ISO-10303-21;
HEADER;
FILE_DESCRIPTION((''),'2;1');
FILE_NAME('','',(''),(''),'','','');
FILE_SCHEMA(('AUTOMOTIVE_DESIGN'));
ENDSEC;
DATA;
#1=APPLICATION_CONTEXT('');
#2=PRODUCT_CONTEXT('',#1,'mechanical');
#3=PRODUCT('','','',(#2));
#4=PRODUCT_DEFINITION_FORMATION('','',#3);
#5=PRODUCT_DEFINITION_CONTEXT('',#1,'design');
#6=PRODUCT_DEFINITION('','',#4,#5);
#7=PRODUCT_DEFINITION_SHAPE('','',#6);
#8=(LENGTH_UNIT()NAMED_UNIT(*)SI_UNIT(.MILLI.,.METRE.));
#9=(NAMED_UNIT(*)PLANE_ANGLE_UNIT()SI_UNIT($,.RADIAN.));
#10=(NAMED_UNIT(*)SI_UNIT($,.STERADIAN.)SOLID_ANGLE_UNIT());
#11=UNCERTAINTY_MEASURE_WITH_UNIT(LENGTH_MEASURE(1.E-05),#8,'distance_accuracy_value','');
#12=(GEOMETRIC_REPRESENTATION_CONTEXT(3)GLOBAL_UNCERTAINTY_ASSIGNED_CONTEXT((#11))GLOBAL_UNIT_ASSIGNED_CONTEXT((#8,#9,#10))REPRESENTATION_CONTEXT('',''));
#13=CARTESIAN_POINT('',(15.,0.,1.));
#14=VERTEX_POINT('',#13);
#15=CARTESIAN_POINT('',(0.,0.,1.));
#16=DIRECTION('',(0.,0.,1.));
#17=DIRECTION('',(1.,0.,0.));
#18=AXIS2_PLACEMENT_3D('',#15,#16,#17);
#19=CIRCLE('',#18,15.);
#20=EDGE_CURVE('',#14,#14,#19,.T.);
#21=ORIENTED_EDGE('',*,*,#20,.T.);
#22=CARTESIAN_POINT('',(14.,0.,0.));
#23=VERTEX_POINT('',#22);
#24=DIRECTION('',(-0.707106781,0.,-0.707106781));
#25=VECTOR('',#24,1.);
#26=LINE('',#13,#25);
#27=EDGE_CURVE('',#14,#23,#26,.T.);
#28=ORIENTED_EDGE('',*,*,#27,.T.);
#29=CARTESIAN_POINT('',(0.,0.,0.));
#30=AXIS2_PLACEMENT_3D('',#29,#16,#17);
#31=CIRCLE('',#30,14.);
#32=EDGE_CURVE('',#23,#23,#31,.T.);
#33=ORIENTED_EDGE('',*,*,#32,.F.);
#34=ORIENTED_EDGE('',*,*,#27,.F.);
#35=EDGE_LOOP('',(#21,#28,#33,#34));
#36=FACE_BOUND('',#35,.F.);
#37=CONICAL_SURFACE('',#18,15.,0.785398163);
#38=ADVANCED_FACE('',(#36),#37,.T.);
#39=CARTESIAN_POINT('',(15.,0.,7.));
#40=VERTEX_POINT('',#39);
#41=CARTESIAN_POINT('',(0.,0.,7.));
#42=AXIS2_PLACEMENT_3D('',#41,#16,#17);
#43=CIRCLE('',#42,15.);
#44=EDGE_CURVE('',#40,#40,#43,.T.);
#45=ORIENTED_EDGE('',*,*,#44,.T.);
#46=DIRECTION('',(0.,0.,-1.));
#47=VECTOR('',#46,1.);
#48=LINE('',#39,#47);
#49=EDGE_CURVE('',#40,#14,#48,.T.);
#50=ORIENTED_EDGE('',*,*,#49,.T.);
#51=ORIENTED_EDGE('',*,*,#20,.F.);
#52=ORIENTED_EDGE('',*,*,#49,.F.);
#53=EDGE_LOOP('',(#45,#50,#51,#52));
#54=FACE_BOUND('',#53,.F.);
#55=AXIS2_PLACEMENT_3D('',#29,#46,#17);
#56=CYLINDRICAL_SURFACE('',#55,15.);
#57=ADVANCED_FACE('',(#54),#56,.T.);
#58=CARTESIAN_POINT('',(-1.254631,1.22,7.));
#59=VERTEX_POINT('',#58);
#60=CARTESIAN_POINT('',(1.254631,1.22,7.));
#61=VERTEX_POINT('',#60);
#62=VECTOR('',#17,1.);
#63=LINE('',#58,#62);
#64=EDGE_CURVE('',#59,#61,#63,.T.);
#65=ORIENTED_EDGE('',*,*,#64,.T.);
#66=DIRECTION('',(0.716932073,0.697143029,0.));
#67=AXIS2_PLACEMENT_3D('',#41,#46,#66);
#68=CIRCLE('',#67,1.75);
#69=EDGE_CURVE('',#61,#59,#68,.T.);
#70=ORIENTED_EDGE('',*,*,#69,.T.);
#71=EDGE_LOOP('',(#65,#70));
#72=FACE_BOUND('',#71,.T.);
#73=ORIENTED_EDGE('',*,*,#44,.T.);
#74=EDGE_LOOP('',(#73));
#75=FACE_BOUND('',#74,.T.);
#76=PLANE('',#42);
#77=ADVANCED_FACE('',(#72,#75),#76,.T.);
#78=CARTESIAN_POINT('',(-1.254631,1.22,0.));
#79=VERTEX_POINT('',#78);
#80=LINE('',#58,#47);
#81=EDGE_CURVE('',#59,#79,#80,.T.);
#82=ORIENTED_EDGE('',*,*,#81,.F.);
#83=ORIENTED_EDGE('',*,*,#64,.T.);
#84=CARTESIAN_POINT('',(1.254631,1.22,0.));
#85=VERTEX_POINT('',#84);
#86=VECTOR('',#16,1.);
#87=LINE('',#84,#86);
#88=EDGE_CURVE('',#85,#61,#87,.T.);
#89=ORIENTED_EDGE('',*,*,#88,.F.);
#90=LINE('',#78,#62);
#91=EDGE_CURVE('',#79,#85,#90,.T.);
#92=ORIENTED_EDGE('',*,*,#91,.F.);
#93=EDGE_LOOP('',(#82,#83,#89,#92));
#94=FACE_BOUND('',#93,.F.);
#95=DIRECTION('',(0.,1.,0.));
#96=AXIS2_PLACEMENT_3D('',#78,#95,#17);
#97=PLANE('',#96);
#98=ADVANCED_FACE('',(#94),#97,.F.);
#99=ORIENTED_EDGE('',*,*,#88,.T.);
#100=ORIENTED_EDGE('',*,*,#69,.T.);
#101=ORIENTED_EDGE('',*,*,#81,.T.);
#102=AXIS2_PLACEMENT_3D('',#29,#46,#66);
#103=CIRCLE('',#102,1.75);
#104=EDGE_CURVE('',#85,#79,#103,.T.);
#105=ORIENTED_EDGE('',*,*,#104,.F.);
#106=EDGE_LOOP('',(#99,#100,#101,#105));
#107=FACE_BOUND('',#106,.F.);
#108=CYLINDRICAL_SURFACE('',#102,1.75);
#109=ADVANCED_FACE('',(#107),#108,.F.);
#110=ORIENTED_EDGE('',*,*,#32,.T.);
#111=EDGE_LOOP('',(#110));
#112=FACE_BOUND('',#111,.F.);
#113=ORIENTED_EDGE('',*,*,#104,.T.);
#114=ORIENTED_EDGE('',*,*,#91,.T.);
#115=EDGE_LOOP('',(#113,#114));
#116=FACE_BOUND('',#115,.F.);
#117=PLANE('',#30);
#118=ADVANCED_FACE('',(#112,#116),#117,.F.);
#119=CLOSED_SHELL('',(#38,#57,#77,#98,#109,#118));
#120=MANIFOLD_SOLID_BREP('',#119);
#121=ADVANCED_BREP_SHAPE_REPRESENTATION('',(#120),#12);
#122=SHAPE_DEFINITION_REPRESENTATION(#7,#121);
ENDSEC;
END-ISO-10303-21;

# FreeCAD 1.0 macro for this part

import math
import FreeCAD as App
import Part
import Sketcher

V = App.Vector
Q = App.Units.Quantity


def edges_at(feature, points):
    """Names of the edges that pass closest to the given points."""
    edges = feature.Shape.Edges
    near = lambda p: min(range(len(edges)), key=lambda i: edges[i].distToShape(Part.Vertex(*p))[0])
    return sorted({f"Edge{near(p) + 1}" for p in points})

doc = App.newDocument("Part")
body = doc.addObject("PartDesign::Body", "Body")

sketch1 = doc.addObject("Sketcher::SketchObject", "Sketch")
body.addObject(sketch1)
sketch1.AttachmentSupport = (doc.XY_Plane, [""])
sketch1.MapMode = "FlatFace"
sketch1.addGeometry(Part.Circle(V(0, 0, 0), V(0, 0, 1), 15), False)
sketch1.addGeometry(Part.LineSegment(V(-1.3, 1.2, 0), V(1.3, 1.2, 0)), False)
sketch1.addGeometry(Part.ArcOfCircle(Part.Circle(V(0, 0, 0), V(0, 0, 1), 1.7), math.radians(136), math.radians(404)), False)
sketch1.addConstraint(Sketcher.Constraint("Coincident", 1, 1, 2, 1))
sketch1.addConstraint(Sketcher.Constraint("Coincident", 2, 2, 1, 2))
sketch1.addConstraint(Sketcher.Constraint("Horizontal", 1))
sketch1.addConstraint(Sketcher.Constraint("Coincident", 0, 3, -1, 1))
sketch1.addConstraint(Sketcher.Constraint("Coincident", 2, 3, -1, 1))
sketch1.addConstraint(Sketcher.Constraint("Diameter", 0, Q("30 mm")))
sketch1.addConstraint(Sketcher.Constraint("Radius", 2, Q("1.75 mm")))
sketch1.addConstraint(Sketcher.Constraint("DistanceY", -1, 1, 1, 1, Q("1.22 mm")))
pad1 = doc.addObject("PartDesign::Pad", "Pad")
body.addObject(pad1)
pad1.Profile = sketch1
pad1.Length = 7

sketch2 = doc.addObject("Sketcher::SketchObject", "Sketch001")
body.addObject(sketch2)
sketch2.AttachmentSupport = (doc.XY_Plane, [""])
sketch2.MapMode = "FlatFace"
sketch2.addGeometry(Part.Circle(V(0, 0, 0), V(0, 0, 1), 15), False)
sketch2.addGeometry(Part.LineSegment(V(-1.3, 1.2, 0), V(1.3, 1.2, 0)), False)
sketch2.addGeometry(Part.ArcOfCircle(Part.Circle(V(0, 0, 0), V(0, 0, 1), 1.7), math.radians(136), math.radians(404)), False)
sketch2.addConstraint(Sketcher.Constraint("Coincident", 1, 1, 2, 1))
sketch2.addConstraint(Sketcher.Constraint("Coincident", 2, 2, 1, 2))
sketch2.addConstraint(Sketcher.Constraint("Horizontal", 1))
sketch2.addConstraint(Sketcher.Constraint("Coincident", 0, 3, -1, 1))
sketch2.addConstraint(Sketcher.Constraint("Coincident", 2, 3, -1, 1))
sketch2.addConstraint(Sketcher.Constraint("Diameter", 0, Q("30 mm")))
sketch2.addConstraint(Sketcher.Constraint("Radius", 2, Q("1.75 mm")))
sketch2.addConstraint(Sketcher.Constraint("DistanceY", -1, 1, 1, 1, Q("1.22 mm")))
pad2 = doc.addObject("PartDesign::Pad", "Pad001")
body.addObject(pad2)
pad2.Profile = sketch2
pad2.Length = 5
doc.recompute()

chamfer = doc.addObject("PartDesign::Chamfer", "Chamfer")
body.addObject(chamfer)
chamfer.Base = (pad2, edges_at(pad2, [(-15, 0, 0)]))
chamfer.Size = 1

doc.recompute()
